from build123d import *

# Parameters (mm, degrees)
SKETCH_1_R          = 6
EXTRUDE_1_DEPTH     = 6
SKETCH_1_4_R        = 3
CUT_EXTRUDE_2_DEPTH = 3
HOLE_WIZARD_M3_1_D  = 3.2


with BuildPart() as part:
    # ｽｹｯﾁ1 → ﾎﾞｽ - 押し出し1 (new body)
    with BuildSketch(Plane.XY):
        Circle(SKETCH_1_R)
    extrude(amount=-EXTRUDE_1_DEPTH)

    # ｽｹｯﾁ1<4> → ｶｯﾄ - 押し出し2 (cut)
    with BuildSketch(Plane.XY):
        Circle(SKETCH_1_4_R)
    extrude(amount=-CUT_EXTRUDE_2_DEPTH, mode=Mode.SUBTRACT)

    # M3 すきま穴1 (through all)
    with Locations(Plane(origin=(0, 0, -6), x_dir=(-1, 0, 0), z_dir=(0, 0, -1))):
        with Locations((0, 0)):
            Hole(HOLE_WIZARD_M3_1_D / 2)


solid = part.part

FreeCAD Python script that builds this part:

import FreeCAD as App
import Part
import Sketcher

V = App.Vector

doc = App.newDocument("Part")
body = doc.addObject("PartDesign::Body", "Body")

sketch1 = doc.addObject("Sketcher::SketchObject", "Sketch")
body.addObject(sketch1)
sketch1.AttachmentSupport = (doc.XY_Plane, [""])
sketch1.MapMode = "FlatFace"
sketch1.addGeometry(Part.Circle(V(0, 0, 0), V(0, 0, 1), 6), False)
sketch1.addConstraint([
    Sketcher.Constraint("Coincident", 0, 3, -1, 1),
    Sketcher.Constraint("Diameter", 0, 12.0),
])
pad1 = doc.addObject("PartDesign::Pad", "Pad")
body.addObject(pad1)
pad1.Profile = sketch1
pad1.Length = 6
pad1.Reversed = True

sketch2 = doc.addObject("Sketcher::SketchObject", "Sketch001")
body.addObject(sketch2)
sketch2.AttachmentSupport = (doc.XY_Plane, [""])
sketch2.MapMode = "FlatFace"
sketch2.addGeometry(Part.Circle(V(0, 0, 0), V(0, 0, 1), 3), False)
sketch2.addConstraint([
    Sketcher.Constraint("Coincident", 0, 3, -1, 1),
    Sketcher.Constraint("Diameter", 0, 6.0),
])
pocket1 = doc.addObject("PartDesign::Pocket", "Pocket")
body.addObject(pocket1)
pocket1.Profile = sketch2
pocket1.Length = 3

sketch3 = doc.addObject("Sketcher::SketchObject", "Sketch002")
body.addObject(sketch3)
sketch3.AttachmentSupport = (doc.XY_Plane, [""])
sketch3.MapMode = "FlatFace"
sketch3.AttachmentOffset = App.Placement(V(0, 0, -6), App.Rotation())
sketch3.addGeometry(Part.Circle(V(0, 0, 0), V(0, 0, 1), 1.6), False)
sketch3.addConstraint([
    Sketcher.Constraint("Coincident", 0, 3, -1, 1),
    Sketcher.Constraint("Diameter", 0, 3.2),
])
doc.recompute()
hole = doc.addObject("PartDesign::Hole", "Hole")
body.addObject(hole)
hole.Profile = sketch3
hole.ThreadType = "None"
hole.Diameter = 3.2
hole.DepthType = "ThroughAll"
hole.Reversed = True

doc.recompute()
